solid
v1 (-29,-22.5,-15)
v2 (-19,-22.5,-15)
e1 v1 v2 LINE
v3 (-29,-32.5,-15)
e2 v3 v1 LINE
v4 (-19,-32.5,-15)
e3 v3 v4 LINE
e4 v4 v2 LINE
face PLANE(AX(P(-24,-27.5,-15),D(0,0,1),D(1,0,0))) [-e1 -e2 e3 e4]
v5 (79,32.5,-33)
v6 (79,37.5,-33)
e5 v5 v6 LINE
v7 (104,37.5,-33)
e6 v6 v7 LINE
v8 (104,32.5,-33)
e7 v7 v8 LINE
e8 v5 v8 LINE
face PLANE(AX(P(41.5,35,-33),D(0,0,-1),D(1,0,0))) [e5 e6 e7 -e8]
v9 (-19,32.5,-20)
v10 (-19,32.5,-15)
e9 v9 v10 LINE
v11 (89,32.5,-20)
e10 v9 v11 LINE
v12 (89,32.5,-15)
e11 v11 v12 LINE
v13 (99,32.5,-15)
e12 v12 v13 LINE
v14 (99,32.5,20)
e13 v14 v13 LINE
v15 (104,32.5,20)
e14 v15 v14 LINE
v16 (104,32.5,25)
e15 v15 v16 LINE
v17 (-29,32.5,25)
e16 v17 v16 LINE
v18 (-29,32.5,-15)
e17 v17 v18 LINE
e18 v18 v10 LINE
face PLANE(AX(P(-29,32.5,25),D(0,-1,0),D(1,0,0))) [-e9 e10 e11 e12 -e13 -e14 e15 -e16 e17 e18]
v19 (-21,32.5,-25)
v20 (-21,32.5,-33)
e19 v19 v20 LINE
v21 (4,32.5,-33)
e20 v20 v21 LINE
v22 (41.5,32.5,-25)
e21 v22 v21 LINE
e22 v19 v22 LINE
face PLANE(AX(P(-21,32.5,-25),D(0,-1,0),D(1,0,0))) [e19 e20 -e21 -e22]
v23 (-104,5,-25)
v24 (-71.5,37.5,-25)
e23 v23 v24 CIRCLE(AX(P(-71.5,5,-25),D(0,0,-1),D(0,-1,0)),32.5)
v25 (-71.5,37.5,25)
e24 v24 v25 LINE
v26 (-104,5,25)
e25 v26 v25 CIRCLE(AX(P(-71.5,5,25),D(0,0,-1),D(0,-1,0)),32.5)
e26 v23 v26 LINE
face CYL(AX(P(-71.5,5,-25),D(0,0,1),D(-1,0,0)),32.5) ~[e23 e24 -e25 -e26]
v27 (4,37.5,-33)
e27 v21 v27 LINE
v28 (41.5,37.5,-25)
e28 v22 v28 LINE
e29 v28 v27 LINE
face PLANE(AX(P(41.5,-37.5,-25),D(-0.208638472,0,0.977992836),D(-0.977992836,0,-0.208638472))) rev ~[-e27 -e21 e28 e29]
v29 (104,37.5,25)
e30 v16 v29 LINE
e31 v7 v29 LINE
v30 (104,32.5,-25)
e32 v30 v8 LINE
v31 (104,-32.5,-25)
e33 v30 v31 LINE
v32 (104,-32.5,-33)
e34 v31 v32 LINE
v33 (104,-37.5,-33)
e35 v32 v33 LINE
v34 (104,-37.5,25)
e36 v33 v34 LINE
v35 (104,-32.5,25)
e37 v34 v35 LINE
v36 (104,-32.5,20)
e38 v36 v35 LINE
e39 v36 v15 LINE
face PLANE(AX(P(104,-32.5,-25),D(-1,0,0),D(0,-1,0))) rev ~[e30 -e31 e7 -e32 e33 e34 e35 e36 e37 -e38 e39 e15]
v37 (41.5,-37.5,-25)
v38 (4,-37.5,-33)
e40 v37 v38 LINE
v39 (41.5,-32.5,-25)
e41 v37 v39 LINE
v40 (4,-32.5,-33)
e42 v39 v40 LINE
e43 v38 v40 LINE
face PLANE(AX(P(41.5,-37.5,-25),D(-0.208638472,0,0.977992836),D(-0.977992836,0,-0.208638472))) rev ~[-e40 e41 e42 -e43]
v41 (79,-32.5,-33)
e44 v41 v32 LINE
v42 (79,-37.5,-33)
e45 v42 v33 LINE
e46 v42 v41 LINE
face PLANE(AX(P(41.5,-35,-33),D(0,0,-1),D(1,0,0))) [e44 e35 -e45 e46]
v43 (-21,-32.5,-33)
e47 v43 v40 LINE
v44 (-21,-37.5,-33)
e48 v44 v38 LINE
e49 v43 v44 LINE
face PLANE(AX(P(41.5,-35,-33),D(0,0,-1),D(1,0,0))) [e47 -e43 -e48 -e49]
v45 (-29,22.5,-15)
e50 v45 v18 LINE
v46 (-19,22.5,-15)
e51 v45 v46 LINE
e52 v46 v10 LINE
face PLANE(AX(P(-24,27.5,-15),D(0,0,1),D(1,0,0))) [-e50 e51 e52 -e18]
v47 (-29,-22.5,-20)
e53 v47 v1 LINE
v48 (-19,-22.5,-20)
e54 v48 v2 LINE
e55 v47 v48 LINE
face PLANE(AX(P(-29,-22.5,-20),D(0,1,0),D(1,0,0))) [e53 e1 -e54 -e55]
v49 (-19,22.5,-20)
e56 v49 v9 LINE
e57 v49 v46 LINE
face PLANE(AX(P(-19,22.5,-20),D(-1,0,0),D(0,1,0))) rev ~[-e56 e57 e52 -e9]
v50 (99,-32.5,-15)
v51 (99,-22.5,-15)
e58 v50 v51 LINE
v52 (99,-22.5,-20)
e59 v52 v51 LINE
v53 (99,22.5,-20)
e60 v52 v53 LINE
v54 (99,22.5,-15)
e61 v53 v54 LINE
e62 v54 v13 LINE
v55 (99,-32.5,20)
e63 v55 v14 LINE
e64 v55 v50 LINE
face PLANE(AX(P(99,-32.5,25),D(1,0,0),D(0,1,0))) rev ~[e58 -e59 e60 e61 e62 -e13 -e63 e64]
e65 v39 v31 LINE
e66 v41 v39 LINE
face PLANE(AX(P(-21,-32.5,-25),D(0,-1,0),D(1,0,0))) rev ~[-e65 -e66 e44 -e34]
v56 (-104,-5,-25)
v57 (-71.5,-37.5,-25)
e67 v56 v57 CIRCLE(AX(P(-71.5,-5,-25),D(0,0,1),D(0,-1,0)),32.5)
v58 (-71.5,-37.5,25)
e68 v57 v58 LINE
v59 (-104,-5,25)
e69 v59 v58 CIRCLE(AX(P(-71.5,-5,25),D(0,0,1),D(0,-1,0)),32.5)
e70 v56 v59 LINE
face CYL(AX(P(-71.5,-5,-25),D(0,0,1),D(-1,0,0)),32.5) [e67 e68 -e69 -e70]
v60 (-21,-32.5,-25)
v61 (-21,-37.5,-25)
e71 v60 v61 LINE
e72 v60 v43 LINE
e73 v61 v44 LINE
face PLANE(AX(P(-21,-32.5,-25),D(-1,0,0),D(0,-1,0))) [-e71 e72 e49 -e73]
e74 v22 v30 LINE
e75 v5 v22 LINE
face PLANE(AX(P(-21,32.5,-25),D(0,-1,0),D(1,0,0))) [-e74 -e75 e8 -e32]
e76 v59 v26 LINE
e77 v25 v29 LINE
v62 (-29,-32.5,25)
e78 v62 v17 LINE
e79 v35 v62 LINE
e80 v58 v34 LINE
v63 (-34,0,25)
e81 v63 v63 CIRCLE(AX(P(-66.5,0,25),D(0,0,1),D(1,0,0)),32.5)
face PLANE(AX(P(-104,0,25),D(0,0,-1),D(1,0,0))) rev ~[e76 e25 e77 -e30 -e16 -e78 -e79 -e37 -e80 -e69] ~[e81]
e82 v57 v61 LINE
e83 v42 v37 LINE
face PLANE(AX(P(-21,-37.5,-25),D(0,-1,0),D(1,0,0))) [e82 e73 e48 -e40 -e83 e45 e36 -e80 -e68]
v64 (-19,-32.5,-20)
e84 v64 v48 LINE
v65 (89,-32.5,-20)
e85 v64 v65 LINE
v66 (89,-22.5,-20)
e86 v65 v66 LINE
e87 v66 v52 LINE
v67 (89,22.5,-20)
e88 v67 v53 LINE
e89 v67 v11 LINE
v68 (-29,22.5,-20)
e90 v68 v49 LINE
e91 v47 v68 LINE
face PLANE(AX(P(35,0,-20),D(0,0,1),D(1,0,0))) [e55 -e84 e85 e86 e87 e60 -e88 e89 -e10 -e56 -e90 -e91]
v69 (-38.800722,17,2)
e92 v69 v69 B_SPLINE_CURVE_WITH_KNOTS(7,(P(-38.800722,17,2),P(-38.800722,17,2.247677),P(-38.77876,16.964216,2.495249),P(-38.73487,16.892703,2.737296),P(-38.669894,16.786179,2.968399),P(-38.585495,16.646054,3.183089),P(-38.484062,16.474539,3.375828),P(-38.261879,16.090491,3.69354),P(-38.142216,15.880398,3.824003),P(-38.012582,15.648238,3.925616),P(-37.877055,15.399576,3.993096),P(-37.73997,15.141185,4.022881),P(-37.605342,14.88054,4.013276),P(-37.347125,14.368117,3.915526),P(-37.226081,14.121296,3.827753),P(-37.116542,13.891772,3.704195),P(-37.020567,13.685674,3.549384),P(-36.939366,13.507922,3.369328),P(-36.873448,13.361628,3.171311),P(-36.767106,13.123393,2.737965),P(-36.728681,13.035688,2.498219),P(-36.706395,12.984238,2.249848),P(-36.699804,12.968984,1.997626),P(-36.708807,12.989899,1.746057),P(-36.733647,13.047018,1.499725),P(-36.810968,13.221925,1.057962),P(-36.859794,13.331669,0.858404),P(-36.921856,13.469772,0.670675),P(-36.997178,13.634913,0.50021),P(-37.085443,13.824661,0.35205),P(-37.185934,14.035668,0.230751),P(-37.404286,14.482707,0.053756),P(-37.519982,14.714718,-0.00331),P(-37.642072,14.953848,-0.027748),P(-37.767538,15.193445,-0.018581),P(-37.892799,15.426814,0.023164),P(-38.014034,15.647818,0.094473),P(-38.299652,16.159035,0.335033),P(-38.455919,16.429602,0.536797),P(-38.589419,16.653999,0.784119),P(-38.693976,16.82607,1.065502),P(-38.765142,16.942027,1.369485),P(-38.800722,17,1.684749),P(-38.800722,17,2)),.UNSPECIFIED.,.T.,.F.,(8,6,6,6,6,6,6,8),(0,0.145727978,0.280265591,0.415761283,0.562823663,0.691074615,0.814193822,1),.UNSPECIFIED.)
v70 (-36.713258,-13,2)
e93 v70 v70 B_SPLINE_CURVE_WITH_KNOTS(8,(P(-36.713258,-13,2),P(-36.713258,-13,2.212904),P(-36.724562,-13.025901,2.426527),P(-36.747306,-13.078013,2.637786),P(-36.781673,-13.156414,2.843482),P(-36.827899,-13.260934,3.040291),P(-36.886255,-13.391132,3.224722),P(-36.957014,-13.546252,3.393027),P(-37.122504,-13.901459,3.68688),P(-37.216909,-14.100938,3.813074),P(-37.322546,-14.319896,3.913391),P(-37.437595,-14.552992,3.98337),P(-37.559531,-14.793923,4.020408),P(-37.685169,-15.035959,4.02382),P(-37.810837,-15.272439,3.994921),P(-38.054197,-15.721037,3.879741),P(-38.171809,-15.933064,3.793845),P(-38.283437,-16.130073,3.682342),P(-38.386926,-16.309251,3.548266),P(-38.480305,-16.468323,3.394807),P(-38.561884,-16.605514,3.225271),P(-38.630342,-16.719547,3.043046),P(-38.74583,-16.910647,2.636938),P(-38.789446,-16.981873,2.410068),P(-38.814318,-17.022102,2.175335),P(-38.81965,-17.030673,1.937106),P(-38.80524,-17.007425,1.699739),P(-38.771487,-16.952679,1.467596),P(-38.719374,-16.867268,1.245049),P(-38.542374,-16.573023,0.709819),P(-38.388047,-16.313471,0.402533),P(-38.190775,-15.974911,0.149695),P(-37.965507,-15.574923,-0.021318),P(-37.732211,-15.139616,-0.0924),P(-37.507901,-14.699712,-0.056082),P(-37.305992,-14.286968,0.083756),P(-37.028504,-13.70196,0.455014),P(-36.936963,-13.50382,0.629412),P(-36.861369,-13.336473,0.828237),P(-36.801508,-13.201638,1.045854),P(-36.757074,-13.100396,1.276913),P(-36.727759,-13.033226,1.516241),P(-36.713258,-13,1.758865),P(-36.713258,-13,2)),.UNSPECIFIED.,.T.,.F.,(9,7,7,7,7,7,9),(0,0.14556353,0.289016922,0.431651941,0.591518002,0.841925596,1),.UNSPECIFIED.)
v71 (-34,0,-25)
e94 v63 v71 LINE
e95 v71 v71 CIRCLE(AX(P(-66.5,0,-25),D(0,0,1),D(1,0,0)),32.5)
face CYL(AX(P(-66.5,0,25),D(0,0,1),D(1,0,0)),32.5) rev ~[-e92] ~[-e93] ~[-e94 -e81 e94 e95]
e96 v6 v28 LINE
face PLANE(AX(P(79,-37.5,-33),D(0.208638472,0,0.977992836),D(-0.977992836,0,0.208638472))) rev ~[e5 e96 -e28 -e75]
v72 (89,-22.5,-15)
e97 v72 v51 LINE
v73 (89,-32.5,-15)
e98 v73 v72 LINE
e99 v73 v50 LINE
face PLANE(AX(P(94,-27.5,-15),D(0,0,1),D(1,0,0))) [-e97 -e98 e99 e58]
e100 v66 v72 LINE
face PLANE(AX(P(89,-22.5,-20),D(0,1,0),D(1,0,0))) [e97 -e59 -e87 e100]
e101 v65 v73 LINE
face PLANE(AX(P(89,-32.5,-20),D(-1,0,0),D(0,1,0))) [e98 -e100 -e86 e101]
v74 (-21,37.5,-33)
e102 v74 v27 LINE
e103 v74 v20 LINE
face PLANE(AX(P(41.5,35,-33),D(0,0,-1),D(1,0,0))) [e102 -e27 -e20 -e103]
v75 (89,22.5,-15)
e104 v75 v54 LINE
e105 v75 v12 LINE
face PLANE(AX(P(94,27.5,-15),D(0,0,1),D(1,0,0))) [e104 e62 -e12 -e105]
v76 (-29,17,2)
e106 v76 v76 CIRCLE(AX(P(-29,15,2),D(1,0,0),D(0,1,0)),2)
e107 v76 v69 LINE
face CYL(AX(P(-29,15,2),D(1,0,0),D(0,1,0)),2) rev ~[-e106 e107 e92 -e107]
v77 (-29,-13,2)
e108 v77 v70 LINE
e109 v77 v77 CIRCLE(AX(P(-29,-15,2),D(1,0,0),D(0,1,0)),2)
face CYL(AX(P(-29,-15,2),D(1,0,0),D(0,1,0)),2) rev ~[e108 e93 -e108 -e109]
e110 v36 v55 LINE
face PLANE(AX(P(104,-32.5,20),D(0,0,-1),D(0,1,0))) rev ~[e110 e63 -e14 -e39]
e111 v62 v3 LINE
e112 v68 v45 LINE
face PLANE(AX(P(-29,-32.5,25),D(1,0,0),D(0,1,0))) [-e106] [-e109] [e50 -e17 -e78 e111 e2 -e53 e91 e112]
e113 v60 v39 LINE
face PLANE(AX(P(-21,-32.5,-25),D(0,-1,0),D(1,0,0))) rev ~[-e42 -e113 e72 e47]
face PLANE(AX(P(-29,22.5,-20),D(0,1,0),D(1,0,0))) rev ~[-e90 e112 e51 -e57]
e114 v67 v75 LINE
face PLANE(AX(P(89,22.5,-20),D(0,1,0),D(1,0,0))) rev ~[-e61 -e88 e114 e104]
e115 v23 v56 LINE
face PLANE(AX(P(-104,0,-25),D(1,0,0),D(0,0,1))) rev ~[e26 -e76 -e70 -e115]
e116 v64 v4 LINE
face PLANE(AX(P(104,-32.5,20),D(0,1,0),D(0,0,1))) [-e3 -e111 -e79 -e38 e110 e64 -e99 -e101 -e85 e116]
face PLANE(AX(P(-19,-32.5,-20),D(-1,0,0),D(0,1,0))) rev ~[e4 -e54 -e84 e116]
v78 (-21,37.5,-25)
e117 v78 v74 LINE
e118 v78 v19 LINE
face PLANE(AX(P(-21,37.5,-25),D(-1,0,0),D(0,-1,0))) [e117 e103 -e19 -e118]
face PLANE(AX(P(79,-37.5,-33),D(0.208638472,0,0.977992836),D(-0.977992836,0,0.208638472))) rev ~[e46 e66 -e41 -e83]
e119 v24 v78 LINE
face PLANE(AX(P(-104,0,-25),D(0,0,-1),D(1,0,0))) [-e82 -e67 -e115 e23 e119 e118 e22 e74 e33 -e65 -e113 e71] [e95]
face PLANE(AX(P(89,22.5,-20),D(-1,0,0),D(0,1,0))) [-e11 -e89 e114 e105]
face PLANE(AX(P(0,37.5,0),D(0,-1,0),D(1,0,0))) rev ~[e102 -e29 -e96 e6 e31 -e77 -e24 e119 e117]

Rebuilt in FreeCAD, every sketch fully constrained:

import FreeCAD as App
import Part
import Sketcher
from FreeCAD import Vector
Q = App.Units.Quantity


def edges_at(feature, points):
    """Names of the edges that pass closest to the given points."""
    edges = feature.Shape.Edges
    near = lambda p: min(range(len(edges)), key=lambda i: edges[i].distToShape(Part.Vertex(*p))[0])
    return sorted({f"Edge{near(p) + 1}" for p in points})


def add_polygon(sketch, points):
    """Adds a closed chain of lines whose ends are joined by coincident constraints."""
    first, n = sketch.GeometryCount, len(points)
    for a, b in zip(points, points[1:] + points[:1]):
        sketch.addGeometry(Part.LineSegment(App.Vector(*a, 0), App.Vector(*b, 0)), False)
    for i in range(n):
        sketch.addConstraint(Sketcher.Constraint("Coincident", first + i, 2, first + (i + 1) % n, 1))

doc = App.newDocument("Part")
body = doc.addObject("PartDesign::Body", "Body")

# Sketch on XZ plane
sketch1 = body.newObject("Sketcher::SketchObject", "Sketch")
sketch1.AttachmentSupport = (doc.getObject("XZ_Plane"), [""])
sketch1.MapMode = "FlatFace"
add_polygon(sketch1, [(-104, 25), (-104, -25), (104, -25), (104, 25)])  # lines 0-3
sketch1.addConstraint([
    Sketcher.Constraint("Vertical", 0),
    Sketcher.Constraint("Horizontal", 1),
    Sketcher.Constraint("Vertical", 2),
    Sketcher.Constraint("Horizontal", 3),
    Sketcher.Constraint("Symmetric", 0, 2, 2, 2, -1, 1),
    Sketcher.Constraint("DistanceX", 1, 1, 1, 2, Q("208 mm")),
    Sketcher.Constraint("DistanceY", 0, 2, 0, 1, Q("50 mm")),
])
pad1 = body.newObject("PartDesign::Pad", "Pad")
pad1.Profile = sketch1
pad1.Length = 75
pad1.Midplane = True

# Sketch on XY plane
sketch2 = body.newObject("Sketcher::SketchObject", "Sketch001")
sketch2.AttachmentSupport = (doc.getObject("XY_Plane"), [""])
sketch2.MapMode = "FlatFace"
sketch2.AttachmentOffset = App.Placement(Vector(0, 0, 25), App.Rotation())
sketch2.addGeometry(Part.Circle(Vector(-66, 0, 0), Vector(0, 0, 1), 32), False)
sketch2.addConstraint([
    Sketcher.Constraint("PointOnObject", 0, 3, -1),
    Sketcher.Constraint("Diameter", 0, Q("65 mm")),
    Sketcher.Constraint("DistanceX", 0, 3, -1, 1, Q("66.5 mm")),
])
pocket1 = body.newObject("PartDesign::Pocket", "Pocket")
pocket1.Profile = sketch2
pocket1.Type = "ThroughAll"

# Sketch on XY plane
sketch3 = body.newObject("Sketcher::SketchObject", "Sketch002")
sketch3.AttachmentSupport = (doc.getObject("XY_Plane"), [""])
sketch3.MapMode = "FlatFace"
sketch3.AttachmentOffset = App.Placement(Vector(0, 0, 25), App.Rotation())
add_polygon(sketch3, [(-29, 32), (-29, -32), (99, -32), (99, 32)])  # lines 0-3
sketch3.addConstraint([
    Sketcher.Constraint("Vertical", 0),
    Sketcher.Constraint("Horizontal", 1),
    Sketcher.Constraint("Vertical", 2),
    Sketcher.Constraint("Horizontal", 3),
    Sketcher.Constraint("DistanceX", 1, 1, 1, 2, Q("128 mm")),
    Sketcher.Constraint("DistanceY", 0, 2, 0, 1, Q("65 mm")),
    Sketcher.Constraint("DistanceX", 0, 2, -1, 1, Q("29 mm")),
    Sketcher.Constraint("DistanceY", 0, 2, -1, 1, Q("32.5 mm")),
])
pocket2 = body.newObject("PartDesign::Pocket", "Pocket001")
pocket2.Profile = sketch3
pocket2.Length = 45

# Sketch on YZ plane
sketch4 = body.newObject("Sketcher::SketchObject", "Sketch003")
sketch4.AttachmentSupport = (doc.getObject("YZ_Plane"), [""])
sketch4.MapMode = "FlatFace"
sketch4.AttachmentOffset = App.Placement(Vector(0, 0, 104), App.Rotation())
add_polygon(sketch4, [(-32, 25), (-32, 20), (32, 20), (32, 25)])  # lines 0-3
sketch4.addConstraint([
    Sketcher.Constraint("Vertical", 0),
    Sketcher.Constraint("Horizontal", 1),
    Sketcher.Constraint("Vertical", 2),
    Sketcher.Constraint("Horizontal", 3),
    Sketcher.Constraint("DistanceX", 1, 1, 1, 2, Q("65 mm")),
    Sketcher.Constraint("DistanceY", 0, 2, 0, 1, Q("5 mm")),
    Sketcher.Constraint("DistanceY", -1, 1, 0, 2, Q("20 mm")),
    Sketcher.Constraint("DistanceX", 0, 2, -1, 1, Q("32.5 mm")),
])
pocket3 = body.newObject("PartDesign::Pocket", "Pocket002")
pocket3.Profile = sketch4
pocket3.Length = 5

# Sketch on XY plane
sketch5 = body.newObject("Sketcher::SketchObject", "Sketch004")
sketch5.AttachmentSupport = (doc.getObject("XY_Plane"), [""])
sketch5.MapMode = "FlatFace"
sketch5.AttachmentOffset = App.Placement(Vector(0, 0, -20), App.Rotation())
add_polygon(sketch5, [(-29, 32), (-29, 22), (-19, 22), (-19, 32)])  # lines 0-3
add_polygon(sketch5, [(89, 32), (89, 22), (99, 22), (99, 32)])  # lines 4-7
add_polygon(sketch5, [(-29, -22), (-29, -32), (-19, -32), (-19, -22)])  # lines 8-11
add_polygon(sketch5, [(89, -22), (89, -32), (99, -32), (99, -22)])  # lines 12-15
sketch5.addConstraint([
    Sketcher.Constraint("Vertical", 0),
    Sketcher.Constraint("Horizontal", 1),
    Sketcher.Constraint("Vertical", 2),
    Sketcher.Constraint("Horizontal", 3),
    Sketcher.Constraint("Vertical", 4),
    Sketcher.Constraint("Horizontal", 5),
    Sketcher.Constraint("Vertical", 6),
    Sketcher.Constraint("Horizontal", 7),
    Sketcher.Constraint("Vertical", 8),
    Sketcher.Constraint("Horizontal", 9),
    Sketcher.Constraint("Vertical", 10),
    Sketcher.Constraint("Horizontal", 11),
    Sketcher.Constraint("Vertical", 12),
    Sketcher.Constraint("Horizontal", 13),
    Sketcher.Constraint("Vertical", 14),
    Sketcher.Constraint("Horizontal", 15),
    Sketcher.Constraint("Symmetric", 3, 2, 8, 2, -1),
    Sketcher.Constraint("Symmetric", 1, 2, 10, 2, -1),
    Sketcher.Constraint("Symmetric", 7, 2, 12, 2, -1),
    Sketcher.Constraint("Symmetric", 5, 2, 14, 2, -1),
    Sketcher.Constraint("Horizontal", 1, 2, 4, 2),
    Sketcher.Constraint("Horizontal", 3, 2, 6, 2),
    Sketcher.Constraint("Equal", 3, 5),
    Sketcher.Constraint("Equal", 15, 0),
    Sketcher.Constraint("DistanceX", 1, 1, 1, 2, Q("10 mm")),
    Sketcher.Constraint("DistanceX", 0, 2, -1, 1, Q("29 mm")),
    Sketcher.Constraint("DistanceX", -1, 1, 4, 2, Q("89 mm")),
    Sketcher.Constraint("DistanceY", 8, 2, 0, 2, Q("55 mm")),
])
pad2 = body.newObject("PartDesign::Pad", "Pad001")
pad2.Profile = sketch5
pad2.Length = 5

# Sketch on YZ plane
sketch6 = body.newObject("Sketcher::SketchObject", "Sketch005")
sketch6.AttachmentSupport = (doc.getObject("YZ_Plane"), [""])
sketch6.MapMode = "FlatFace"
sketch6.AttachmentOffset = App.Placement(Vector(0, 0, -29), App.Rotation())
sketch6.addGeometry([
    Part.Circle(Vector(-15, 2, 0), Vector(0, 0, 1), 2),
    Part.Circle(Vector(15, 2, 0), Vector(0, 0, 1), 2),
], False)
sketch6.addConstraint([
    Sketcher.Constraint("Equal", 0, 1),
    Sketcher.Constraint("Symmetric", 0, 3, 1, 3, -2),
    Sketcher.Constraint("Diameter", 0, Q("4 mm")),
    Sketcher.Constraint("DistanceX", 0, 3, -1, 1, Q("15 mm")),
    Sketcher.Constraint("DistanceY", -1, 1, 0, 3, Q("2 mm")),
])
pocket4 = body.newObject("PartDesign::Pocket", "Pocket003")
pocket4.Profile = sketch6
pocket4.Length = 9.801722
doc.recompute()

fillet = body.newObject("PartDesign::Fillet", "Fillet")
fillet.Base = (pocket4, edges_at(pocket4, [(-104, -37.5, 0), (-104, 37.5, 0)]))
fillet.Radius = 32.5

# Sketch on XY plane
sketch7 = body.newObject("Sketcher::SketchObject", "Sketch006")
sketch7.AttachmentSupport = (doc.getObject("XY_Plane"), [""])
sketch7.MapMode = "FlatFace"
sketch7.AttachmentOffset = App.Placement(Vector(0, 0, -25), App.Rotation())
add_polygon(sketch7, [(-21, -38), (-21, -32), (104, -32), (104, -38)])  # lines 0-3
add_polygon(sketch7, [(-21, 32), (-21, 38), (104, 38), (104, 32)])  # lines 4-7
sketch7.addConstraint([
    Sketcher.Constraint("Vertical", 0),
    Sketcher.Constraint("Horizontal", 1),
    Sketcher.Constraint("Vertical", 2),
    Sketcher.Constraint("Horizontal", 3),
    Sketcher.Constraint("Vertical", 4),
    Sketcher.Constraint("Horizontal", 5),
    Sketcher.Constraint("Vertical", 6),
    Sketcher.Constraint("Horizontal", 7),
    Sketcher.Constraint("Symmetric", 3, 2, 4, 2, -1),
    Sketcher.Constraint("Symmetric", 1, 2, 6, 2, -1),
    Sketcher.Constraint("DistanceX", 1, 1, 1, 2, Q("125 mm")),
    Sketcher.Constraint("DistanceY", 0, 1, 0, 2, Q("5 mm")),
    Sketcher.Constraint("DistanceX", 0, 2, -1, 1, Q("21 mm")),
    Sketcher.Constraint("DistanceY", 0, 2, 4, 2, Q("70 mm")),
])
pad3 = body.newObject("PartDesign::Pad", "Pad002")
pad3.Profile = sketch7
pad3.Length = 8
pad3.Reversed = True

# Sketch on XZ plane
sketch8 = body.newObject("Sketcher::SketchObject", "Sketch007")
sketch8.AttachmentSupport = (doc.getObject("XZ_Plane"), [""])
sketch8.MapMode = "FlatFace"
sketch8.AttachmentOffset = App.Placement(Vector(0, 0, 37.5), App.Rotation())
add_polygon(sketch8, [(42, -25), (4, -33), (79, -33)])  # lines 0-2
sketch8.addConstraint([
    Sketcher.Constraint("Horizontal", 1),
    Sketcher.Constraint("Equal", 0, 2),
    Sketcher.Constraint("DistanceX", 1, 1, 1, 2, Q("75 mm")),
    Sketcher.Constraint("DistanceX", -1, 1, 0, 2, Q("4 mm")),
    Sketcher.Constraint("DistanceY", 0, 2, -1, 1, Q("33 mm")),
    Sketcher.Constraint("DistanceY", 2, 2, -1, 1, Q("25 mm")),
])
pocket5 = body.newObject("PartDesign::Pocket", "Pocket004")
pocket5.Profile = sketch8
pocket5.Type = "ThroughAll"

doc.recompute()
